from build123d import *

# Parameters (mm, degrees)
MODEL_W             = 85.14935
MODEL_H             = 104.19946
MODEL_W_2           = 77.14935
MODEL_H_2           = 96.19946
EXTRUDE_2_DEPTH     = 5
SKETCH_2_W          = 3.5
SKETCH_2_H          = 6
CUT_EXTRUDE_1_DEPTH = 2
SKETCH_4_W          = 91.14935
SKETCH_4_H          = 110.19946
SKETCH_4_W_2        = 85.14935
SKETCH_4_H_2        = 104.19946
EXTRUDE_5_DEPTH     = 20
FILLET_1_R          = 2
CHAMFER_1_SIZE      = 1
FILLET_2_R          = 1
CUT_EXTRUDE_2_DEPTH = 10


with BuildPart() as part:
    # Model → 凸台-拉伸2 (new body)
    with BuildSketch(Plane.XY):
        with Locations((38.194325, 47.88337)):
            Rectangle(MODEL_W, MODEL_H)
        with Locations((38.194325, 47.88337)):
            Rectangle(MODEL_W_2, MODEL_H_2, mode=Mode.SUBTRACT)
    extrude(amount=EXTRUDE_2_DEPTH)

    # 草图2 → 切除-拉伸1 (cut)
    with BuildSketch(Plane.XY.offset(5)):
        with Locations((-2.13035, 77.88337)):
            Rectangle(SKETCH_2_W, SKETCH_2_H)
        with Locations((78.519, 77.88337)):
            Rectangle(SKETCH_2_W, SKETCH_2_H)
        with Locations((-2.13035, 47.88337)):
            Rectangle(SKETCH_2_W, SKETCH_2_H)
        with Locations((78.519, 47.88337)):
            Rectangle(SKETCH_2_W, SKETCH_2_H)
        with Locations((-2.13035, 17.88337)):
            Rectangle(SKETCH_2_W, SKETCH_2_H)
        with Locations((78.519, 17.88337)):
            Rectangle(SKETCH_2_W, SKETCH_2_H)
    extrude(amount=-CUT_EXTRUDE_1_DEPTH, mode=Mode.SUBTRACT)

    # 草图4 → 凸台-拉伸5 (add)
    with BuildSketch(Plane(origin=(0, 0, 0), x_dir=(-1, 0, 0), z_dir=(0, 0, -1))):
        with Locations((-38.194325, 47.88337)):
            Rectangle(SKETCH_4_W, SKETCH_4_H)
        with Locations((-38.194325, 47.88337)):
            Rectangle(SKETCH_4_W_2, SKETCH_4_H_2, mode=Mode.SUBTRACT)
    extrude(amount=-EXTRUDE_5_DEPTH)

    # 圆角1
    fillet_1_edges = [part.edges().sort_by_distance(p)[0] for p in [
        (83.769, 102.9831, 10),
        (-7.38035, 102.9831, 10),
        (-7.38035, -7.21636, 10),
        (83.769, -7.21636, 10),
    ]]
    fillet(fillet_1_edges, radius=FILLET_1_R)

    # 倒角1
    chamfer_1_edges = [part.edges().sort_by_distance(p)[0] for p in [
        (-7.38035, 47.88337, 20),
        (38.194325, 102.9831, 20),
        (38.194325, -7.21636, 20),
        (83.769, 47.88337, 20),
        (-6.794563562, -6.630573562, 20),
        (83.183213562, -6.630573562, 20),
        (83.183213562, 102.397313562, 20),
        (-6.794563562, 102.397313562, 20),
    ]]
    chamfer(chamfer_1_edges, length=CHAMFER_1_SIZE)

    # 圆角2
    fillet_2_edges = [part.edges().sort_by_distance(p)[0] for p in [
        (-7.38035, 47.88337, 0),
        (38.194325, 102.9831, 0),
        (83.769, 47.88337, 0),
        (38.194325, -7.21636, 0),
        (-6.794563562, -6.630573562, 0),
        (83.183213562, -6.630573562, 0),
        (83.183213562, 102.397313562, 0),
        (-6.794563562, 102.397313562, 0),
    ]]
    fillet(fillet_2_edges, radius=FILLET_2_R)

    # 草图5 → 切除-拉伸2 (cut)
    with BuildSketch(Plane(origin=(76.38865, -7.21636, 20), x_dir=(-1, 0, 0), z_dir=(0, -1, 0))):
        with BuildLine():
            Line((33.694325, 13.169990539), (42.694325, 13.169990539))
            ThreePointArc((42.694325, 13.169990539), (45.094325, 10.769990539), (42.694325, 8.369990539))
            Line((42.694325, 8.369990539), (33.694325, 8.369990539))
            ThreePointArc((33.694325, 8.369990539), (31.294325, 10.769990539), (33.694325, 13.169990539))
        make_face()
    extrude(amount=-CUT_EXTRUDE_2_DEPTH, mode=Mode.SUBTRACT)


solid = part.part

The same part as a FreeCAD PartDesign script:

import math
import FreeCAD as App
import Part
import Sketcher
Q = App.Units.Quantity


def edges_at(feature, points):
    """Names of the edges that pass closest to the given points."""
    edges = feature.Shape.Edges
    near = lambda p: min(range(len(edges)), key=lambda i: edges[i].distToShape(Part.Vertex(*p))[0])
    return sorted({f"Edge{near(p) + 1}" for p in points})

doc = App.newDocument("Part")
params = doc.addObject("Spreadsheet::Sheet", "Params")
for row, (alias, value) in enumerate([
    ("pad1_length", "5 mm"),
    ("sketch2_height", "6 mm"),
    ("sketch2_width", "3.5 mm"),
    ("pocket1_length", "2 mm"),
    ("pad2_length", "20 mm"),
    ("fillet_radius", "2 mm"),
    ("chamfer_size", "1 mm"),
    ("fillet2_radius", "1 mm"),
    ("sketch4_radius", "2.4 mm"),
    ("sketch4_width", "9 mm"),
    ("pocket2_length", "10 mm"),
], start=1):
    params.set(f"A{row}", alias)
    params.set(f"B{row}", "=" + value)
    params.setAlias(f"B{row}", alias)

body = doc.addObject("PartDesign::Body", "Body")

sketch1 = doc.addObject("Sketcher::SketchObject", "Sketch")
body.addObject(sketch1)
sketch1.AttachmentSupport = (doc.XY_Plane, [""])
sketch1.MapMode = "FlatFace"
sketch1.addGeometry(Part.LineSegment(App.Vector(-4, 100, 0), App.Vector(-4, -4, 0)), False)
sketch1.addGeometry(Part.LineSegment(App.Vector(-4, -4, 0), App.Vector(81, -4, 0)), False)
sketch1.addGeometry(Part.LineSegment(App.Vector(81, -4, 0), App.Vector(81, 100, 0)), False)
sketch1.addGeometry(Part.LineSegment(App.Vector(81, 100, 0), App.Vector(-4, 100, 0)), False)
sketch1.addGeometry(Part.LineSegment(App.Vector(77, 0, 0), App.Vector(0, 0, 0)), False)
sketch1.addGeometry(Part.LineSegment(App.Vector(0, 0, 0), App.Vector(0, 96, 0)), False)
sketch1.addGeometry(Part.LineSegment(App.Vector(0, 96, 0), App.Vector(77, 96, 0)), False)
sketch1.addGeometry(Part.LineSegment(App.Vector(77, 96, 0), App.Vector(77, 0, 0)), False)
sketch1.addConstraint(Sketcher.Constraint("Coincident", 0, 2, 1, 1))
sketch1.addConstraint(Sketcher.Constraint("Coincident", 1, 2, 2, 1))
sketch1.addConstraint(Sketcher.Constraint("Coincident", 2, 2, 3, 1))
sketch1.addConstraint(Sketcher.Constraint("Coincident", 3, 2, 0, 1))
sketch1.addConstraint(Sketcher.Constraint("Coincident", 4, 2, 5, 1))
sketch1.addConstraint(Sketcher.Constraint("Coincident", 5, 2, 6, 1))
sketch1.addConstraint(Sketcher.Constraint("Coincident", 6, 2, 7, 1))
sketch1.addConstraint(Sketcher.Constraint("Coincident", 7, 2, 4, 1))
sketch1.addConstraint(Sketcher.Constraint("Vertical", 0))
sketch1.addConstraint(Sketcher.Constraint("Horizontal", 1))
sketch1.addConstraint(Sketcher.Constraint("Vertical", 2))
sketch1.addConstraint(Sketcher.Constraint("Horizontal", 3))
sketch1.addConstraint(Sketcher.Constraint("Horizontal", 4))
sketch1.addConstraint(Sketcher.Constraint("Vertical", 5))
sketch1.addConstraint(Sketcher.Constraint("Horizontal", 6))
sketch1.addConstraint(Sketcher.Constraint("Vertical", 7))
sketch1.addConstraint(Sketcher.Constraint("DistanceX", 0, 2, 4, 2, Q("4 mm")))
sketch1.addConstraint(Sketcher.Constraint("DistanceY", 0, 2, 4, 2, Q("4 mm")))
sketch1.addConstraint(Sketcher.Constraint("DistanceY", 5, 2, 3, 2, Q("4 mm")))
sketch1.addConstraint(Sketcher.Constraint("DistanceX", 6, 2, 2, 2, Q("4 mm")))
sketch1.addConstraint(Sketcher.Constraint("DistanceX", -1, 1, 1, 2, Q("80.769 mm")))
sketch1.addConstraint(Sketcher.Constraint("DistanceX", 1, 1, 1, 2, Q("85.14935 mm")))
sketch1.addConstraint(Sketcher.Constraint("DistanceY", 0, 2, 0, 1, Q("104.19946 mm")))
sketch1.addConstraint(Sketcher.Constraint("DistanceY", -1, 1, 2, 2, Q("99.9831 mm")))
pad1 = doc.addObject("PartDesign::Pad", "Pad")
body.addObject(pad1)
pad1.Profile = sketch1
pad1.setExpression("Length", "Params.pad1_length")

sketch2 = doc.addObject("Sketcher::SketchObject", "Sketch001")
body.addObject(sketch2)
sketch2.AttachmentSupport = (doc.XY_Plane, [""])
sketch2.MapMode = "FlatFace"
sketch2.AttachmentOffset = App.Placement(App.Vector(0, 0, 5), App.Rotation())
sketch2.addGeometry(Part.LineSegment(App.Vector(-3.9, 80.9, 0), App.Vector(-3.9, 74.9, 0)), False)
sketch2.addGeometry(Part.LineSegment(App.Vector(-3.9, 74.9, 0), App.Vector(-0.4, 74.9, 0)), False)
sketch2.addGeometry(Part.LineSegment(App.Vector(-0.4, 74.9, 0), App.Vector(-0.4, 80.9, 0)), False)
sketch2.addGeometry(Part.LineSegment(App.Vector(-0.4, 80.9, 0), App.Vector(-3.9, 80.9, 0)), False)
sketch2.addGeometry(Part.LineSegment(App.Vector(76.8, 80.9, 0), App.Vector(76.8, 74.9, 0)), False)
sketch2.addGeometry(Part.LineSegment(App.Vector(76.8, 74.9, 0), App.Vector(80.3, 74.9, 0)), False)
sketch2.addGeometry(Part.LineSegment(App.Vector(80.3, 74.9, 0), App.Vector(80.3, 80.9, 0)), False)
sketch2.addGeometry(Part.LineSegment(App.Vector(80.3, 80.9, 0), App.Vector(76.8, 80.9, 0)), False)
sketch2.addGeometry(Part.LineSegment(App.Vector(-3.9, 50.9, 0), App.Vector(-3.9, 44.9, 0)), False)
sketch2.addGeometry(Part.LineSegment(App.Vector(-3.9, 44.9, 0), App.Vector(-0.4, 44.9, 0)), False)
sketch2.addGeometry(Part.LineSegment(App.Vector(-0.4, 44.9, 0), App.Vector(-0.4, 50.9, 0)), False)
sketch2.addGeometry(Part.LineSegment(App.Vector(-0.4, 50.9, 0), App.Vector(-3.9, 50.9, 0)), False)
sketch2.addGeometry(Part.LineSegment(App.Vector(76.8, 50.9, 0), App.Vector(76.8, 44.9, 0)), False)
sketch2.addGeometry(Part.LineSegment(App.Vector(76.8, 44.9, 0), App.Vector(80.3, 44.9, 0)), False)
sketch2.addGeometry(Part.LineSegment(App.Vector(80.3, 44.9, 0), App.Vector(80.3, 50.9, 0)), False)
sketch2.addGeometry(Part.LineSegment(App.Vector(80.3, 50.9, 0), App.Vector(76.8, 50.9, 0)), False)
sketch2.addGeometry(Part.LineSegment(App.Vector(-3.9, 20.9, 0), App.Vector(-3.9, 14.9, 0)), False)
sketch2.addGeometry(Part.LineSegment(App.Vector(-3.9, 14.9, 0), App.Vector(-0.4, 14.9, 0)), False)
sketch2.addGeometry(Part.LineSegment(App.Vector(-0.4, 14.9, 0), App.Vector(-0.4, 20.9, 0)), False)
sketch2.addGeometry(Part.LineSegment(App.Vector(-0.4, 20.9, 0), App.Vector(-3.9, 20.9, 0)), False)
sketch2.addGeometry(Part.LineSegment(App.Vector(76.8, 20.9, 0), App.Vector(76.8, 14.9, 0)), False)
sketch2.addGeometry(Part.LineSegment(App.Vector(76.8, 14.9, 0), App.Vector(80.3, 14.9, 0)), False)
sketch2.addGeometry(Part.LineSegment(App.Vector(80.3, 14.9, 0), App.Vector(80.3, 20.9, 0)), False)
sketch2.addGeometry(Part.LineSegment(App.Vector(80.3, 20.9, 0), App.Vector(76.8, 20.9, 0)), False)
sketch2.addConstraint(Sketcher.Constraint("Coincident", 0, 2, 1, 1))
sketch2.addConstraint(Sketcher.Constraint("Coincident", 1, 2, 2, 1))
sketch2.addConstraint(Sketcher.Constraint("Coincident", 2, 2, 3, 1))
sketch2.addConstraint(Sketcher.Constraint("Coincident", 3, 2, 0, 1))
sketch2.addConstraint(Sketcher.Constraint("Coincident", 4, 2, 5, 1))
sketch2.addConstraint(Sketcher.Constraint("Coincident", 5, 2, 6, 1))
sketch2.addConstraint(Sketcher.Constraint("Coincident", 6, 2, 7, 1))
sketch2.addConstraint(Sketcher.Constraint("Coincident", 7, 2, 4, 1))
sketch2.addConstraint(Sketcher.Constraint("Coincident", 8, 2, 9, 1))
sketch2.addConstraint(Sketcher.Constraint("Coincident", 9, 2, 10, 1))
sketch2.addConstraint(Sketcher.Constraint("Coincident", 10, 2, 11, 1))
sketch2.addConstraint(Sketcher.Constraint("Coincident", 11, 2, 8, 1))
sketch2.addConstraint(Sketcher.Constraint("Coincident", 12, 2, 13, 1))
sketch2.addConstraint(Sketcher.Constraint("Coincident", 13, 2, 14, 1))
sketch2.addConstraint(Sketcher.Constraint("Coincident", 14, 2, 15, 1))
sketch2.addConstraint(Sketcher.Constraint("Coincident", 15, 2, 12, 1))
sketch2.addConstraint(Sketcher.Constraint("Coincident", 16, 2, 17, 1))
sketch2.addConstraint(Sketcher.Constraint("Coincident", 17, 2, 18, 1))
sketch2.addConstraint(Sketcher.Constraint("Coincident", 18, 2, 19, 1))
sketch2.addConstraint(Sketcher.Constraint("Coincident", 19, 2, 16, 1))
sketch2.addConstraint(Sketcher.Constraint("Coincident", 20, 2, 21, 1))
sketch2.addConstraint(Sketcher.Constraint("Coincident", 21, 2, 22, 1))
sketch2.addConstraint(Sketcher.Constraint("Coincident", 22, 2, 23, 1))
sketch2.addConstraint(Sketcher.Constraint("Coincident", 23, 2, 20, 1))
sketch2.addConstraint(Sketcher.Constraint("Vertical", 0))
sketch2.addConstraint(Sketcher.Constraint("Horizontal", 1))
sketch2.addConstraint(Sketcher.Constraint("Vertical", 2))
sketch2.addConstraint(Sketcher.Constraint("Horizontal", 3))
sketch2.addConstraint(Sketcher.Constraint("Vertical", 4))
sketch2.addConstraint(Sketcher.Constraint("Horizontal", 5))
sketch2.addConstraint(Sketcher.Constraint("Vertical", 6))
sketch2.addConstraint(Sketcher.Constraint("Horizontal", 7))
sketch2.addConstraint(Sketcher.Constraint("Vertical", 8))
sketch2.addConstraint(Sketcher.Constraint("Horizontal", 9))
sketch2.addConstraint(Sketcher.Constraint("Vertical", 10))
sketch2.addConstraint(Sketcher.Constraint("Horizontal", 11))
sketch2.addConstraint(Sketcher.Constraint("Vertical", 12))
sketch2.addConstraint(Sketcher.Constraint("Horizontal", 13))
sketch2.addConstraint(Sketcher.Constraint("Vertical", 14))
sketch2.addConstraint(Sketcher.Constraint("Horizontal", 15))
sketch2.addConstraint(Sketcher.Constraint("Vertical", 16))
sketch2.addConstraint(Sketcher.Constraint("Horizontal", 17))
sketch2.addConstraint(Sketcher.Constraint("Vertical", 18))
sketch2.addConstraint(Sketcher.Constraint("Horizontal", 19))
sketch2.addConstraint(Sketcher.Constraint("Vertical", 20))
sketch2.addConstraint(Sketcher.Constraint("Horizontal", 21))
sketch2.addConstraint(Sketcher.Constraint("Vertical", 22))
sketch2.addConstraint(Sketcher.Constraint("Horizontal", 23))
sketch2.addConstraint(Sketcher.Constraint("Horizontal", 1, 2, 4, 2))
sketch2.addConstraint(Sketcher.Constraint("Horizontal", 3, 2, 6, 2))
sketch2.addConstraint(Sketcher.Constraint("Horizontal", 9, 2, 12, 2))
sketch2.addConstraint(Sketcher.Constraint("Horizontal", 11, 2, 14, 2))
sketch2.addConstraint(Sketcher.Constraint("Horizontal", 17, 2, 20, 2))
sketch2.addConstraint(Sketcher.Constraint("Horizontal", 19, 2, 22, 2))
sketch2.addConstraint(Sketcher.Constraint("Vertical", 3, 2, 8, 2))
sketch2.addConstraint(Sketcher.Constraint("Vertical", 2, 2, 9, 2))
sketch2.addConstraint(Sketcher.Constraint("Vertical", 7, 2, 12, 2))
sketch2.addConstraint(Sketcher.Constraint("Vertical", 6, 2, 13, 2))
sketch2.addConstraint(Sketcher.Constraint("Vertical", 11, 2, 16, 2))
sketch2.addConstraint(Sketcher.Constraint("Vertical", 10, 2, 17, 2))
sketch2.addConstraint(Sketcher.Constraint("Vertical", 15, 2, 20, 2))
sketch2.addConstraint(Sketcher.Constraint("Vertical", 14, 2, 21, 2))
sketch2.addConstraint(Sketcher.Constraint("Equal", 3, 5))
sketch2.addConstraint(Sketcher.Constraint("Equal", 6, 8))
sketch2.addConstraint(Sketcher.Constraint("Equal", 14, 16))
sketch2.addConstraint(Sketcher.Constraint("DistanceY", 0, 2, 0, 1, Q("6 mm")))
sketch2.addConstraint(Sketcher.Constraint("DistanceX", 1, 1, 1, 2, Q("3.5 mm")))
sketch2.addConstraint(Sketcher.Constraint("DistanceY", 8, 2, 0, 2, Q("30 mm")))
sketch2.addConstraint(Sketcher.Constraint("DistanceY", 16, 2, 8, 2, Q("30 mm")))
sketch2.addConstraint(Sketcher.Constraint("DistanceX", -1, 1, 4, 2, Q("76.769 mm")))
sketch2.addConstraint(Sketcher.Constraint("DistanceX", 0, 2, -1, 1, Q("3.88035 mm")))
sketch2.addConstraint(Sketcher.Constraint("DistanceY", -1, 1, 0, 2, Q("74.88337 mm")))
sketch2.setExpression("Constraints[65]", "Params.sketch2_height")
sketch2.setExpression("Constraints[66]", "Params.sketch2_width")
pocket1 = doc.addObject("PartDesign::Pocket", "Pocket")
body.addObject(pocket1)
pocket1.Profile = sketch2
pocket1.setExpression("Length", "Params.pocket1_length")

sketch3 = doc.addObject("Sketcher::SketchObject", "Sketch002")
body.addObject(sketch3)
sketch3.AttachmentSupport = (doc.XY_Plane, [""])
sketch3.MapMode = "FlatFace"
sketch3.addGeometry(Part.LineSegment(App.Vector(84, 103, 0), App.Vector(84, -7, 0)), False)
sketch3.addGeometry(Part.LineSegment(App.Vector(84, -7, 0), App.Vector(-7, -7, 0)), False)
sketch3.addGeometry(Part.LineSegment(App.Vector(-7, -7, 0), App.Vector(-7, 103, 0)), False)
sketch3.addGeometry(Part.LineSegment(App.Vector(-7, 103, 0), App.Vector(84, 103, 0)), False)
sketch3.addGeometry(Part.LineSegment(App.Vector(-4, -4, 0), App.Vector(81, -4, 0)), False)
sketch3.addGeometry(Part.LineSegment(App.Vector(81, -4, 0), App.Vector(81, 100, 0)), False)
sketch3.addGeometry(Part.LineSegment(App.Vector(81, 100, 0), App.Vector(-4, 100, 0)), False)
sketch3.addGeometry(Part.LineSegment(App.Vector(-4, 100, 0), App.Vector(-4, -4, 0)), False)
sketch3.addConstraint(Sketcher.Constraint("Coincident", 0, 2, 1, 1))
sketch3.addConstraint(Sketcher.Constraint("Coincident", 1, 2, 2, 1))
sketch3.addConstraint(Sketcher.Constraint("Coincident", 2, 2, 3, 1))
sketch3.addConstraint(Sketcher.Constraint("Coincident", 3, 2, 0, 1))
sketch3.addConstraint(Sketcher.Constraint("Coincident", 4, 2, 5, 1))
sketch3.addConstraint(Sketcher.Constraint("Coincident", 5, 2, 6, 1))
sketch3.addConstraint(Sketcher.Constraint("Coincident", 6, 2, 7, 1))
sketch3.addConstraint(Sketcher.Constraint("Coincident", 7, 2, 4, 1))
sketch3.addConstraint(Sketcher.Constraint("Vertical", 0))
sketch3.addConstraint(Sketcher.Constraint("Horizontal", 1))
sketch3.addConstraint(Sketcher.Constraint("Vertical", 2))
sketch3.addConstraint(Sketcher.Constraint("Horizontal", 3))
sketch3.addConstraint(Sketcher.Constraint("Horizontal", 4))
sketch3.addConstraint(Sketcher.Constraint("Vertical", 5))
sketch3.addConstraint(Sketcher.Constraint("Horizontal", 6))
sketch3.addConstraint(Sketcher.Constraint("Vertical", 7))
sketch3.addConstraint(Sketcher.Constraint("DistanceX", 4, 2, 0, 2, Q("3 mm")))
sketch3.addConstraint(Sketcher.Constraint("DistanceY", 0, 2, 4, 2, Q("3 mm")))
sketch3.addConstraint(Sketcher.Constraint("DistanceY", 5, 2, 3, 2, Q("3 mm")))
sketch3.addConstraint(Sketcher.Constraint("DistanceX", 2, 2, 6, 2, Q("3 mm")))
sketch3.addConstraint(Sketcher.Constraint("DistanceX", -1, 1, 0, 2, Q("83.769 mm")))
sketch3.addConstraint(Sketcher.Constraint("DistanceX", 1, 2, 1, 1, Q("91.14935 mm")))
sketch3.addConstraint(Sketcher.Constraint("DistanceY", 0, 2, 0, 1, Q("110.19946 mm")))
sketch3.addConstraint(Sketcher.Constraint("DistanceY", -1, 1, 2, 2, Q("102.9831 mm")))
pad2 = doc.addObject("PartDesign::Pad", "Pad001")
body.addObject(pad2)
pad2.Profile = sketch3
pad2.setExpression("Length", "Params.pad2_length")
doc.recompute()

fillet = doc.addObject("PartDesign::Fillet", "Fillet")
body.addObject(fillet)
fillet.Base = (pad2, edges_at(pad2, [
    (83.769, 102.983, 10),
    (-7.38, 102.983, 10),
    (-7.38, -7.216, 10),
    (83.769, -7.216, 10),
]))
fillet.setExpression("Radius", "Params.fillet_radius")
doc.recompute()

chamfer = doc.addObject("PartDesign::Chamfer", "Chamfer")
body.addObject(chamfer)
chamfer.Base = (fillet, edges_at(fillet, [
    (-7.38, 47.883, 20),
    (38.194, 102.983, 20),
    (38.194, -7.216, 20),
    (83.769, 47.883, 20),
    (-6.795, -6.631, 20),
    (83.183, -6.631, 20),
    (83.183, 102.397, 20),
    (-6.795, 102.397, 20),
]))
chamfer.setExpression("Size", "Params.chamfer_size")
doc.recompute()

fillet2 = doc.addObject("PartDesign::Fillet", "Fillet001")
body.addObject(fillet2)
fillet2.Base = (chamfer, edges_at(chamfer, [
    (-7.38, 47.883, 0),
    (38.194, 102.983, 0),
    (83.769, 47.883, 0),
    (38.194, -7.216, 0),
    (-6.795, -6.631, 0),
    (83.183, -6.631, 0),
    (83.183, 102.397, 0),
    (-6.795, 102.397, 0),
]))
fillet2.setExpression("Radius", "Params.fillet2_radius")

sketch4 = doc.addObject("Sketcher::SketchObject", "Sketch003")
body.addObject(sketch4)
sketch4.AttachmentSupport = (doc.XZ_Plane, [""])
sketch4.MapMode = "FlatFace"
sketch4.AttachmentOffset = App.Placement(App.Vector(0, 0, 7.21636), App.Rotation())
sketch4.addGeometry(Part.LineSegment(App.Vector(33.7, 6.8, 0), App.Vector(42.7, 6.8, 0)), False)
sketch4.addGeometry(Part.ArcOfCircle(Part.Circle(App.Vector(42.7, 9.2, 0), App.Vector(0, 0, 1), 2.4), math.radians(-90), math.radians(90)), False)
sketch4.addGeometry(Part.LineSegment(App.Vector(42.7, 11.6, 0), App.Vector(33.7, 11.6, 0)), False)
sketch4.addGeometry(Part.ArcOfCircle(Part.Circle(App.Vector(33.7, 9.2, 0), App.Vector(0, 0, 1), 2.4), math.radians(90), math.radians(270)), False)
sketch4.addConstraint(Sketcher.Constraint("Tangent", 0, 2, 1, 1))
sketch4.addConstraint(Sketcher.Constraint("Tangent", 1, 2, 2, 1))
sketch4.addConstraint(Sketcher.Constraint("Tangent", 2, 2, 3, 1))
sketch4.addConstraint(Sketcher.Constraint("Tangent", 3, 2, 0, 1))
sketch4.addConstraint(Sketcher.Constraint("Horizontal", 0))
sketch4.addConstraint(Sketcher.Constraint("Horizontal", 2))
sketch4.addConstraint(Sketcher.Constraint("Radius", 1, Q("2.4 mm")))
sketch4.addConstraint(Sketcher.Constraint("DistanceX", 0, 1, 0, 2, Q("9 mm")))
sketch4.addConstraint(Sketcher.Constraint("DistanceY", -1, 1, 1, 3, Q("9.230009 mm")))
sketch4.addConstraint(Sketcher.Constraint("DistanceX", -1, 1, 1, 3, Q("42.694325 mm")))
sketch4.setExpression("Constraints[6]", "Params.sketch4_radius")
sketch4.setExpression("Constraints[7]", "Params.sketch4_width")
pocket2 = doc.addObject("PartDesign::Pocket", "Pocket001")
body.addObject(pocket2)
pocket2.Profile = sketch4
pocket2.setExpression("Length", "Params.pocket2_length")

doc.recompute()
